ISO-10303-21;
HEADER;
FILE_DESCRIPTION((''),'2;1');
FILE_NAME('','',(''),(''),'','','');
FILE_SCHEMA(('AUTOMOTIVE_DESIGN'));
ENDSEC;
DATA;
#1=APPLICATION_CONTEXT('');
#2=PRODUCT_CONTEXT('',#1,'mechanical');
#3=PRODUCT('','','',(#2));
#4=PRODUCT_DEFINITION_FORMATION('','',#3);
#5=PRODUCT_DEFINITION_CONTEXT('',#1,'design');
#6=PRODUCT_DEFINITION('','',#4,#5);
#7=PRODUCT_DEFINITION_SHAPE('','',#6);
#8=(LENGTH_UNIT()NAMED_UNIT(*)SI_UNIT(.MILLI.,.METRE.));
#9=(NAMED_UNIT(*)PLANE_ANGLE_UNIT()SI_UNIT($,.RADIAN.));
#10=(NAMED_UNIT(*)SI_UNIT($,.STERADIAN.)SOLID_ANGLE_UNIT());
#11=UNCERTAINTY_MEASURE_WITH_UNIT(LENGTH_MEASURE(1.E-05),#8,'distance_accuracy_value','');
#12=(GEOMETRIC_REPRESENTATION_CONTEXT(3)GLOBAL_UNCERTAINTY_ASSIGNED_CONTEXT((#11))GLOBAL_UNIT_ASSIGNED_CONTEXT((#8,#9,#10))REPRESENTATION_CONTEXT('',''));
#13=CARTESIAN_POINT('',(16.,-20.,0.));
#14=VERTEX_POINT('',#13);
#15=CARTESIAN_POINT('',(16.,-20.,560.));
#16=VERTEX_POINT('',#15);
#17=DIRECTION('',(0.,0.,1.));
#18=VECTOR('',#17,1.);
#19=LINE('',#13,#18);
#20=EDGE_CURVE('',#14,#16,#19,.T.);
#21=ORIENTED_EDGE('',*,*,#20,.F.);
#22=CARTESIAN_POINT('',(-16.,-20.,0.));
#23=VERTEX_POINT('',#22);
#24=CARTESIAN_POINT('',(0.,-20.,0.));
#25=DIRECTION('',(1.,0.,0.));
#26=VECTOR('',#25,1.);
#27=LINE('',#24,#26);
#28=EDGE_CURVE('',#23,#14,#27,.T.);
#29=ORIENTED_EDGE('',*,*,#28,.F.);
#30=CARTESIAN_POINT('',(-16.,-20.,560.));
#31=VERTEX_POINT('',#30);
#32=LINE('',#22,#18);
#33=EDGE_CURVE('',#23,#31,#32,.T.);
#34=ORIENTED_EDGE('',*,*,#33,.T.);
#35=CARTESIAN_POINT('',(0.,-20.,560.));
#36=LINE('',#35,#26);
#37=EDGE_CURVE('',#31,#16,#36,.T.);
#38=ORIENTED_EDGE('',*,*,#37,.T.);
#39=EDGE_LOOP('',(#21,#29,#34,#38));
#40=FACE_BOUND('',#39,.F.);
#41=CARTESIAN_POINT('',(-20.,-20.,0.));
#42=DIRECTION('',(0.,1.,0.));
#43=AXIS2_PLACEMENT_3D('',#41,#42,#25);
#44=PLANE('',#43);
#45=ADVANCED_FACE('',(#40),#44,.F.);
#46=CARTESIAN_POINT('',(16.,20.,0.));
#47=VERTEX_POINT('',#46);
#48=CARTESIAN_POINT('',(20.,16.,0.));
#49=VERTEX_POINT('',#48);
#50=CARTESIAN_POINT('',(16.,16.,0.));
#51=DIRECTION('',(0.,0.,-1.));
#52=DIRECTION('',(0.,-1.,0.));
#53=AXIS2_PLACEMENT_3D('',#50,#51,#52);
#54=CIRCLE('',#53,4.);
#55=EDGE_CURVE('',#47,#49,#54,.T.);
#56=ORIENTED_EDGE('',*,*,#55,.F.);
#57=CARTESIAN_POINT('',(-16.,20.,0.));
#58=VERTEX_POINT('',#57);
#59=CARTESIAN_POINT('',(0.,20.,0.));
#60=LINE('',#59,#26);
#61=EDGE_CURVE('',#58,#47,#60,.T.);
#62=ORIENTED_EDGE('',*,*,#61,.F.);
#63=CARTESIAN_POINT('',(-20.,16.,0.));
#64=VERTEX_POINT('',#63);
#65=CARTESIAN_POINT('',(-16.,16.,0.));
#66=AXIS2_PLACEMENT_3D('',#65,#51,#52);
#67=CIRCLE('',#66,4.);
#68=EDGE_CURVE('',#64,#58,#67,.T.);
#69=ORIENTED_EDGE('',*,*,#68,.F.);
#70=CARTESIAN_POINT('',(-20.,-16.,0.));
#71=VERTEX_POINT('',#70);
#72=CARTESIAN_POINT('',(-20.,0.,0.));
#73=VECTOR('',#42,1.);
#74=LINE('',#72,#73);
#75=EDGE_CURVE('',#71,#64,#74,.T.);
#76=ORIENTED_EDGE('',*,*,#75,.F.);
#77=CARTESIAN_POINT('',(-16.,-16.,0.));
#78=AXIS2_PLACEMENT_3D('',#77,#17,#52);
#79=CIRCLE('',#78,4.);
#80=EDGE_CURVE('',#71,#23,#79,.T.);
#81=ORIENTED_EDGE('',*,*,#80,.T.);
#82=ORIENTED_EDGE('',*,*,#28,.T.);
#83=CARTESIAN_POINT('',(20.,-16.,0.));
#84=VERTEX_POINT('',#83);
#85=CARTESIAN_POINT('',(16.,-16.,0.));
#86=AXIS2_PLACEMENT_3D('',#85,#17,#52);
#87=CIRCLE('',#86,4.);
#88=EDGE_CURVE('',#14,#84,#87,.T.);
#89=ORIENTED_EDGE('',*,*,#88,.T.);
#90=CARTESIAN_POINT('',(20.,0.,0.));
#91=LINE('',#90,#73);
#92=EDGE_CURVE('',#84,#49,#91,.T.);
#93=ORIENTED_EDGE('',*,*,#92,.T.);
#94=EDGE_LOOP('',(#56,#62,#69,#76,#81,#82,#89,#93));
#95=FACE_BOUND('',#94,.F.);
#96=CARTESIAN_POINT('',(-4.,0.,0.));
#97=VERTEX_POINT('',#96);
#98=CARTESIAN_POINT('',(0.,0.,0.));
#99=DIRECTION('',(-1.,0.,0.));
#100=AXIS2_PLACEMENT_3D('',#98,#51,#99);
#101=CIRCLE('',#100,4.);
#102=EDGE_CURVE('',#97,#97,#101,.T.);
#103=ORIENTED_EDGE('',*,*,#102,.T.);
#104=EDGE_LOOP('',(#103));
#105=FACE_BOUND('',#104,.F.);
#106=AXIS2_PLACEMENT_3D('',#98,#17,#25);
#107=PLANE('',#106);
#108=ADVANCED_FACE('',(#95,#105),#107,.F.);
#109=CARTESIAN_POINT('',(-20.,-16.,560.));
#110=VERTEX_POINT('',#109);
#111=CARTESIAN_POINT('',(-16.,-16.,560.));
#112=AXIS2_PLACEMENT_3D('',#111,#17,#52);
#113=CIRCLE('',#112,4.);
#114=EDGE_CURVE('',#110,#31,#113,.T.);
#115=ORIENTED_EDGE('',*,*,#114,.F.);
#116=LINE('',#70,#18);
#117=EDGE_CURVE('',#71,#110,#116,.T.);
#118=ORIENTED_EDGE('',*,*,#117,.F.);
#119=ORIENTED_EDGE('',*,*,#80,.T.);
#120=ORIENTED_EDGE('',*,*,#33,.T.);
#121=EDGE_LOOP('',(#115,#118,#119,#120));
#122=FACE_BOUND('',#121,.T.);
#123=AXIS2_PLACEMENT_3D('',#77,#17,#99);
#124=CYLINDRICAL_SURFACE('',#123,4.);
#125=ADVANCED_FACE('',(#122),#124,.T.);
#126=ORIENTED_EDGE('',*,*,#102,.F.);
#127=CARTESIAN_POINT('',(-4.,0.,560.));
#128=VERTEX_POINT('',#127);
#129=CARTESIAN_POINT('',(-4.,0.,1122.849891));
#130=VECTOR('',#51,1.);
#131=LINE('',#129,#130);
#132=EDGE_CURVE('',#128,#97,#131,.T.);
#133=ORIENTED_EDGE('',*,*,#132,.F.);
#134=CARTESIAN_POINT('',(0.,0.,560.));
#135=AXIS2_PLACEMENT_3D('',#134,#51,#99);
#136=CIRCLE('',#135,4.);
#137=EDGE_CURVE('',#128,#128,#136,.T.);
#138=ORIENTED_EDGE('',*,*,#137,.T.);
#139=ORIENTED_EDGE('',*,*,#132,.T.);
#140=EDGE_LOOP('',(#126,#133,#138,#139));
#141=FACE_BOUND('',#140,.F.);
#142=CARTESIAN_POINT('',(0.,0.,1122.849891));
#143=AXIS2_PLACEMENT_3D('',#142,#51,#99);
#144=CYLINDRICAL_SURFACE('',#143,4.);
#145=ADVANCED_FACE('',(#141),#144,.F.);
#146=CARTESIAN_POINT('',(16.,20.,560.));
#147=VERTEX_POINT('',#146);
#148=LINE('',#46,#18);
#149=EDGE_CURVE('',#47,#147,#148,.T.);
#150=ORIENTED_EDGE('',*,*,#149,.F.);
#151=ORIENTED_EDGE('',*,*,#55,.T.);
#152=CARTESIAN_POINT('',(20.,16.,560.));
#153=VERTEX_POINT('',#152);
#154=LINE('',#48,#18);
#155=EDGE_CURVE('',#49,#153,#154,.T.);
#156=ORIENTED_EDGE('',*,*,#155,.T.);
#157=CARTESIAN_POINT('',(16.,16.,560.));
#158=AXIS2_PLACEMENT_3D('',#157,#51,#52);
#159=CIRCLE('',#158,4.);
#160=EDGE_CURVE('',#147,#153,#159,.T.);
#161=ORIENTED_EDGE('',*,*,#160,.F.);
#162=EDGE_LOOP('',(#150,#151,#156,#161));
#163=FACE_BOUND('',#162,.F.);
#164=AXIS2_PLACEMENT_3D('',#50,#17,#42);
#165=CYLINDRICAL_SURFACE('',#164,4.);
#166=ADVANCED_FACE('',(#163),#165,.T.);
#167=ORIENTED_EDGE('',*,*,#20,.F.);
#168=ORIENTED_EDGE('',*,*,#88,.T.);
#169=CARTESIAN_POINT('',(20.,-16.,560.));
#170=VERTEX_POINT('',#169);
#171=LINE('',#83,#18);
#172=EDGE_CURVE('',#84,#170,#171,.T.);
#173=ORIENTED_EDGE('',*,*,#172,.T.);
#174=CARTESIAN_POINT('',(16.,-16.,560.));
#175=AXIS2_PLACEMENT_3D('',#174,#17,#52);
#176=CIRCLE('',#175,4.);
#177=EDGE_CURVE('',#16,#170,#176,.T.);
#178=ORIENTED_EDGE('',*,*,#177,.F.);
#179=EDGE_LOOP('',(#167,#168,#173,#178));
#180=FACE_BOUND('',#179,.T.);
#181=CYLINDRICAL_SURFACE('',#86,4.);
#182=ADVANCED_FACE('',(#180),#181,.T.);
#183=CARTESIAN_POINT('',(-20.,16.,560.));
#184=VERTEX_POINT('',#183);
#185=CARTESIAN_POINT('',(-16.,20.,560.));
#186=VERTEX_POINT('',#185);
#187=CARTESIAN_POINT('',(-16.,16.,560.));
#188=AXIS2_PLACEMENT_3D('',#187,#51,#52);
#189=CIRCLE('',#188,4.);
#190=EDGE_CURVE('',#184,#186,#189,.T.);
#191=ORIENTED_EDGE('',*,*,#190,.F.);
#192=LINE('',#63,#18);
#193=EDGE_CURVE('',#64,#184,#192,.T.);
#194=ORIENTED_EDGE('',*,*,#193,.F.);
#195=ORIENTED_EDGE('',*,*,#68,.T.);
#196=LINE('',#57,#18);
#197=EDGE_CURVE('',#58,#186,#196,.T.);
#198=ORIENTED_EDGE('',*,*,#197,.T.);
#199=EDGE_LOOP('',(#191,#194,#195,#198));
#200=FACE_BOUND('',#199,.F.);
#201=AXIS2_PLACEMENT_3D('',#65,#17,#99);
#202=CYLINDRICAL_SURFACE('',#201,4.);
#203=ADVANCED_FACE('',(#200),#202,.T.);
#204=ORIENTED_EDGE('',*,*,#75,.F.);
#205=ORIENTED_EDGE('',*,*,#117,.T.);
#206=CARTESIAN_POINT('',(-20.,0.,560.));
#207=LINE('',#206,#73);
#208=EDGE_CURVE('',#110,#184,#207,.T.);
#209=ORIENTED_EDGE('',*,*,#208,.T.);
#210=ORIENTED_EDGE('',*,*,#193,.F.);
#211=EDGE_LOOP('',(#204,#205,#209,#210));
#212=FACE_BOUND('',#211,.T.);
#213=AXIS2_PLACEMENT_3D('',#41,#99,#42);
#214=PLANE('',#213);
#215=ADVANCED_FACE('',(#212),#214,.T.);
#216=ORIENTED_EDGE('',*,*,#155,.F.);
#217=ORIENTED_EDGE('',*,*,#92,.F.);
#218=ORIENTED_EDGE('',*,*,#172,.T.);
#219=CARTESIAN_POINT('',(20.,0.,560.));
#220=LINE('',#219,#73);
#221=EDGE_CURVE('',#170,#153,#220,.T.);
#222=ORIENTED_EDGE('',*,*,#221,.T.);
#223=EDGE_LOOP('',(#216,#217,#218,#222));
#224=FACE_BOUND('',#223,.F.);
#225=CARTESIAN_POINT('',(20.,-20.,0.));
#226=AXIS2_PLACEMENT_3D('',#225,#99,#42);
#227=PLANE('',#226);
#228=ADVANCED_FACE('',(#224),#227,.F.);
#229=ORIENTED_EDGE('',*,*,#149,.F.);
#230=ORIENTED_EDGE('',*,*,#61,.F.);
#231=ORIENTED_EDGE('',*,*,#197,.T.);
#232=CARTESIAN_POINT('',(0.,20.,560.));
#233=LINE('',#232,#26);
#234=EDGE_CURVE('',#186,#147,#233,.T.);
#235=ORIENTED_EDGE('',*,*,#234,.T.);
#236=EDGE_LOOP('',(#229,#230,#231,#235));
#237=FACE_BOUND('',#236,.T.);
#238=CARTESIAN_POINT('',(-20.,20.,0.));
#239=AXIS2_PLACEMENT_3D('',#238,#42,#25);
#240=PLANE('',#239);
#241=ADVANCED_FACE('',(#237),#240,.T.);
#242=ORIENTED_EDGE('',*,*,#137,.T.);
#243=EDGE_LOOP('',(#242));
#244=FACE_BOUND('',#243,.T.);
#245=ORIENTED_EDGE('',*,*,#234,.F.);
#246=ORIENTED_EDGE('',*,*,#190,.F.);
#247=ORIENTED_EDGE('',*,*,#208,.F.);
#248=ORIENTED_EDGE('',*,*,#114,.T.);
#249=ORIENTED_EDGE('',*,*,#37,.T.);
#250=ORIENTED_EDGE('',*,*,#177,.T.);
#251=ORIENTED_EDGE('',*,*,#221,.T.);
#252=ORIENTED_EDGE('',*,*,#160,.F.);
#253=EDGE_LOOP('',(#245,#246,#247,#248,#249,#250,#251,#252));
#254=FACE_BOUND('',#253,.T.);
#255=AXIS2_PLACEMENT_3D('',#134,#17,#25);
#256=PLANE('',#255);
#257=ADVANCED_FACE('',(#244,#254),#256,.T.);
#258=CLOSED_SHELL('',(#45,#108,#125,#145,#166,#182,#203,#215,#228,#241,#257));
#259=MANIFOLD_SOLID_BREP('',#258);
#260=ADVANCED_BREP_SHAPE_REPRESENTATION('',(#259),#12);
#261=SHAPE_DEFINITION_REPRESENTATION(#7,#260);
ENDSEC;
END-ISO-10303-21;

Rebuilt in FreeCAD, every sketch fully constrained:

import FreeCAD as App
import Part
import Sketcher


def edges_at(feature, points):
    """Names of the edges that pass closest to the given points."""
    edges = feature.Shape.Edges
    near = lambda p: min(range(len(edges)), key=lambda i: edges[i].distToShape(Part.Vertex(*p))[0])
    return sorted({f"Edge{near(p) + 1}" for p in points})

doc = App.newDocument("Part")
params = doc.addObject("Spreadsheet::Sheet", "Params")
for row, (alias, value) in enumerate([
    ("sketch1_width", "40 mm"),
    ("pad1_length", "560 mm"),
    ("sketch2_diameter", "8 mm"),
    ("hole_diameter", "8 mm"),
    ("fillet_radius", "4 mm"),
], start=1):
    params.set(f"A{row}", alias)
    params.set(f"B{row}", "=" + value)
    params.setAlias(f"B{row}", alias)

body = doc.addObject("PartDesign::Body", "Body")

# Sketch on XY plane
sketch1 = body.newObject("Sketcher::SketchObject", "Sketch")
sketch1.AttachmentSupport = (doc.getObject("XY_Plane"), [""])
sketch1.MapMode = "FlatFace"
sketch1.addGeometry([
    Part.LineSegment(App.Vector(-20, 20, 0), App.Vector(-20, -20, 0)),
    Part.LineSegment(App.Vector(-20, -20, 0), App.Vector(20, -20, 0)),
    Part.LineSegment(App.Vector(20, -20, 0), App.Vector(20, 20, 0)),
    Part.LineSegment(App.Vector(20, 20, 0), App.Vector(-20, 20, 0)),
], False)
sketch1.addConstraint([
    Sketcher.Constraint("Coincident", 0, 2, 1, 1),
    Sketcher.Constraint("Coincident", 1, 2, 2, 1),
    Sketcher.Constraint("Coincident", 2, 2, 3, 1),
    Sketcher.Constraint("Coincident", 3, 2, 0, 1),
    Sketcher.Constraint("Vertical", 0),
    Sketcher.Constraint("Horizontal", 1),
    Sketcher.Constraint("Vertical", 2),
    Sketcher.Constraint("Horizontal", 3),
    Sketcher.Constraint("Symmetric", 0, 2, 2, 2, -1, 1),
    Sketcher.Constraint("Equal", 3, 0),
    Sketcher.Constraint("DistanceX", 1, 1, 1, 2, 40.0),
])
sketch1.setExpression("Constraints[10]", "Params.sketch1_width")
pad1 = body.newObject("PartDesign::Pad", "Pad")
pad1.Profile = sketch1
pad1.setExpression("Length", "Params.pad1_length")

# Sketch on XY plane
sketch2 = body.newObject("Sketcher::SketchObject", "Sketch001")
sketch2.AttachmentSupport = (doc.getObject("XY_Plane"), [""])
sketch2.MapMode = "FlatFace"
sketch2.AttachmentOffset = App.Placement(App.Vector(0, 0, 560), App.Rotation())
sketch2.addGeometry(Part.Circle(App.Vector(0, 0, 0), App.Vector(0, 0, 1), 4), False)
sketch2.addConstraint([
    Sketcher.Constraint("Coincident", 0, 3, -1, 1),
    Sketcher.Constraint("Diameter", 0, 8.0),
])
sketch2.setExpression("Constraints[1]", "Params.sketch2_diameter")
doc.recompute()
hole = body.newObject("PartDesign::Hole", "Hole")
hole.Profile = sketch2
hole.ThreadType = "None"
hole.setExpression("Diameter", "Params.hole_diameter")
hole.DepthType = "ThroughAll"
doc.recompute()

fillet = body.newObject("PartDesign::Fillet", "Fillet")
fillet.Base = (hole, edges_at(hole, [
    (20, -20, 280),
    (-20, -20, 280),
    (20, 20, 280),
    (-20, 20, 280),
]))
fillet.setExpression("Radius", "Params.fillet_radius")

doc.recompute()
